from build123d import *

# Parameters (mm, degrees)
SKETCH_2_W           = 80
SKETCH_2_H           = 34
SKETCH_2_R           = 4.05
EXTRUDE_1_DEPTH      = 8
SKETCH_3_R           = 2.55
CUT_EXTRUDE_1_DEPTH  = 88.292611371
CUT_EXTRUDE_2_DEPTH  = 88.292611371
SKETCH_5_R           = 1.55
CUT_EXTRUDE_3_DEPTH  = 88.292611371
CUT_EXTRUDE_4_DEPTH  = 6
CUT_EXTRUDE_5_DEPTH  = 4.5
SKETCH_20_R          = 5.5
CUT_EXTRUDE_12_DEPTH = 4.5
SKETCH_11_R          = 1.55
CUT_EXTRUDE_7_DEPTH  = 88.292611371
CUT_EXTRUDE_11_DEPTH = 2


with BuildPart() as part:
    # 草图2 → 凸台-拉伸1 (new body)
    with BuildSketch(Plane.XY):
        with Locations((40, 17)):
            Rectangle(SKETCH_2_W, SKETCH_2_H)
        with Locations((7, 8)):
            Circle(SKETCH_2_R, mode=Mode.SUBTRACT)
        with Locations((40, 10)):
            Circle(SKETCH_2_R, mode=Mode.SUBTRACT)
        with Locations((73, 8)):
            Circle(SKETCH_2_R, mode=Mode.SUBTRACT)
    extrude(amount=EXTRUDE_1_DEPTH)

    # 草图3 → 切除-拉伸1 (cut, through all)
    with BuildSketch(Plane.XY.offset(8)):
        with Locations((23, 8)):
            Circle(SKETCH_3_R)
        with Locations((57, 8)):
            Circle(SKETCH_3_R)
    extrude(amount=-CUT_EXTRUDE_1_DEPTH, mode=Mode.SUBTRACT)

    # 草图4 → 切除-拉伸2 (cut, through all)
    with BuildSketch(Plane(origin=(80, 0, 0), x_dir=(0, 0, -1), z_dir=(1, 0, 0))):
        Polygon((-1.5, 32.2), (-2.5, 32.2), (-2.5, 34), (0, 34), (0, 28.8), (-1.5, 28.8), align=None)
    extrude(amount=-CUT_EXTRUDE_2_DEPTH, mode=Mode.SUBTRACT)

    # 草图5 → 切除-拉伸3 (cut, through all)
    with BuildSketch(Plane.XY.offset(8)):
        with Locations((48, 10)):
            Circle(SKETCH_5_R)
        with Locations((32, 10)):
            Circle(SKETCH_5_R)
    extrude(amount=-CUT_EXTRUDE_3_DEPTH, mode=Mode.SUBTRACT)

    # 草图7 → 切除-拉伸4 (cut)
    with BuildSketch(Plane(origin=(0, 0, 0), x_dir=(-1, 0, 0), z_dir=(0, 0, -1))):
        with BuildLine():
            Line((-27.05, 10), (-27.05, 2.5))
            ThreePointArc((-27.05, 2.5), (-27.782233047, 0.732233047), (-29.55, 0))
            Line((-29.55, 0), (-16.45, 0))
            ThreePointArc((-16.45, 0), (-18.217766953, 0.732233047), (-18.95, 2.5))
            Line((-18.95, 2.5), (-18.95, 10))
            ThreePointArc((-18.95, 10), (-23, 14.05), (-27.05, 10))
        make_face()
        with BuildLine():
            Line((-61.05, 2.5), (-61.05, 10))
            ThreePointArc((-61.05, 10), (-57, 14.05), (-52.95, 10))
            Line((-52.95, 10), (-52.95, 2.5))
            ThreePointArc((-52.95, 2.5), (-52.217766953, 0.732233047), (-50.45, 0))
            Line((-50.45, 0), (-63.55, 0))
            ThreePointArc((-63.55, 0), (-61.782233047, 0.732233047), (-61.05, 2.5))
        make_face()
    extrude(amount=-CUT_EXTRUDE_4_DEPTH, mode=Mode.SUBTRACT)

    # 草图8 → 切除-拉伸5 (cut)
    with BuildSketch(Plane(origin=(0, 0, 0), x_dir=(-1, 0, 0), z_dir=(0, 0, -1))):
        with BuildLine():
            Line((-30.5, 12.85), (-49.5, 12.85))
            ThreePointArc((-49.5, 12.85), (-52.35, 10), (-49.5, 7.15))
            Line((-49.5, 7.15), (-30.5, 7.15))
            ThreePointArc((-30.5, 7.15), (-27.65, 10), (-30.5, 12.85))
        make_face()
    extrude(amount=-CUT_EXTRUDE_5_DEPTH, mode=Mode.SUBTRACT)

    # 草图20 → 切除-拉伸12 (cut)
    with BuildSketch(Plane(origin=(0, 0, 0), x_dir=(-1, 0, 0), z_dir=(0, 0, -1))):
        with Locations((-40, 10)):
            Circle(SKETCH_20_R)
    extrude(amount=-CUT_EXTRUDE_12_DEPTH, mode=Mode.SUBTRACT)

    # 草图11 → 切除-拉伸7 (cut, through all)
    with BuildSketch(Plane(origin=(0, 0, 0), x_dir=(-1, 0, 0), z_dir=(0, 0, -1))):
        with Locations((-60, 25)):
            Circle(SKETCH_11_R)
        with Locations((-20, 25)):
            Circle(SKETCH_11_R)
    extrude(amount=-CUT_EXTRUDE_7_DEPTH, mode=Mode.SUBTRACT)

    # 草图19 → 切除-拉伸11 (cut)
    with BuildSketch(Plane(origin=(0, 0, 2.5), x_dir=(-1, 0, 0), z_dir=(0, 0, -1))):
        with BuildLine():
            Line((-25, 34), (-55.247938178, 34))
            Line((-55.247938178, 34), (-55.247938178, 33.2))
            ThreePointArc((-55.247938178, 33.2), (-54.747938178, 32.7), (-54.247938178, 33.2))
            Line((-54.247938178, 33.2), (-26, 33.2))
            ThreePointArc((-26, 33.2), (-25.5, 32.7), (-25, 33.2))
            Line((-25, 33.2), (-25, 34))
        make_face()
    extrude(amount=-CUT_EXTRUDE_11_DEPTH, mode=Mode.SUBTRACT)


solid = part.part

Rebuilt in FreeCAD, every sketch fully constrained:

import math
import FreeCAD as App
import Part
import Sketcher

V = App.Vector
Q = App.Units.Quantity

doc = App.newDocument("Part")
body = doc.addObject("PartDesign::Body", "Body")

sketch1 = body.newObject("Sketcher::SketchObject", "Sketch")
sketch1.AttachmentSupport = (doc.getObject("XY_Plane"), [""])
sketch1.MapMode = "FlatFace"
sketch1.addGeometry(Part.LineSegment(V(0, 34, 0), V(0, 0, 0)), False)
sketch1.addGeometry(Part.LineSegment(V(0, 0, 0), V(80, 0, 0)), False)
sketch1.addGeometry(Part.LineSegment(V(80, 0, 0), V(80, 34, 0)), False)
sketch1.addGeometry(Part.LineSegment(V(80, 34, 0), V(0, 34, 0)), False)
sketch1.addGeometry(Part.Circle(V(7, 8, 0), V(0, 0, 1), 4), False)
sketch1.addGeometry(Part.Circle(V(73, 8, 0), V(0, 0, 1), 4), False)
sketch1.addGeometry(Part.Circle(V(40, 10, 0), V(0, 0, 1), 4), False)
sketch1.addConstraint(Sketcher.Constraint("Coincident", 0, 2, 1, 1))
sketch1.addConstraint(Sketcher.Constraint("Coincident", 1, 2, 2, 1))
sketch1.addConstraint(Sketcher.Constraint("Coincident", 2, 2, 3, 1))
sketch1.addConstraint(Sketcher.Constraint("Coincident", 3, 2, 0, 1))
sketch1.addConstraint(Sketcher.Constraint("Vertical", 0))
sketch1.addConstraint(Sketcher.Constraint("Horizontal", 1))
sketch1.addConstraint(Sketcher.Constraint("Vertical", 2))
sketch1.addConstraint(Sketcher.Constraint("Horizontal", 3))
sketch1.addConstraint(Sketcher.Constraint("Coincident", 0, 2, -1, 1))
sketch1.addConstraint(Sketcher.Constraint("Equal", 4, 5))
sketch1.addConstraint(Sketcher.Constraint("Equal", 5, 6))
sketch1.addConstraint(Sketcher.Constraint("Horizontal", 4, 3, 5, 3))
sketch1.addConstraint(Sketcher.Constraint("Diameter", 4, Q("8.1 mm")))
sketch1.addConstraint(Sketcher.Constraint("DistanceX", 1, 1, 1, 2, Q("80 mm")))
sketch1.addConstraint(Sketcher.Constraint("DistanceY", 0, 2, 0, 1, Q("34 mm")))
sketch1.addConstraint(Sketcher.Constraint("DistanceX", -1, 1, 4, 3, Q("7 mm")))
sketch1.addConstraint(Sketcher.Constraint("DistanceY", -1, 1, 4, 3, Q("8 mm")))
sketch1.addConstraint(Sketcher.Constraint("DistanceX", -1, 1, 5, 3, Q("73 mm")))
sketch1.addConstraint(Sketcher.Constraint("DistanceX", -1, 1, 6, 3, Q("40 mm")))
sketch1.addConstraint(Sketcher.Constraint("DistanceY", -1, 1, 6, 3, Q("10 mm")))
pad1 = body.newObject("PartDesign::Pad", "Pad")
pad1.Profile = sketch1
pad1.Length = 8

sketch2 = body.newObject("Sketcher::SketchObject", "Sketch001")
sketch2.AttachmentSupport = (doc.getObject("XY_Plane"), [""])
sketch2.MapMode = "FlatFace"
sketch2.AttachmentOffset = App.Placement(V(0, 0, 8), App.Rotation())
sketch2.addGeometry(Part.Circle(V(23, 8, 0), V(0, 0, 1), 2.5), False)
sketch2.addGeometry(Part.Circle(V(57, 8, 0), V(0, 0, 1), 2.5), False)
sketch2.addConstraint(Sketcher.Constraint("Equal", 0, 1))
sketch2.addConstraint(Sketcher.Constraint("Horizontal", 0, 3, 1, 3))
sketch2.addConstraint(Sketcher.Constraint("Diameter", 0, Q("5.1 mm")))
sketch2.addConstraint(Sketcher.Constraint("DistanceX", -1, 1, 0, 3, Q("23 mm")))
sketch2.addConstraint(Sketcher.Constraint("DistanceY", -1, 1, 0, 3, Q("8 mm")))
sketch2.addConstraint(Sketcher.Constraint("DistanceX", -1, 1, 1, 3, Q("57 mm")))
pocket1 = body.newObject("PartDesign::Pocket", "Pocket")
pocket1.Profile = sketch2
pocket1.Type = "ThroughAll"

sketch3 = body.newObject("Sketcher::SketchObject", "Sketch002")
sketch3.AttachmentSupport = (doc.getObject("YZ_Plane"), [""])
sketch3.MapMode = "FlatFace"
sketch3.AttachmentOffset = App.Placement(V(0, 0, 80), App.Rotation())
sketch3.addGeometry(Part.LineSegment(V(32.2, 2.5, 0), V(32.2, 1.5, 0)), False)
sketch3.addGeometry(Part.LineSegment(V(32.2, 1.5, 0), V(28.8, 1.5, 0)), False)
sketch3.addGeometry(Part.LineSegment(V(28.8, 1.5, 0), V(28.8, 0, 0)), False)
sketch3.addGeometry(Part.LineSegment(V(28.8, 0, 0), V(34, 0, 0)), False)
sketch3.addGeometry(Part.LineSegment(V(34, 0, 0), V(34, 2.5, 0)), False)
sketch3.addGeometry(Part.LineSegment(V(34, 2.5, 0), V(32.2, 2.5, 0)), False)
sketch3.addConstraint(Sketcher.Constraint("Coincident", 0, 2, 1, 1))
sketch3.addConstraint(Sketcher.Constraint("Coincident", 1, 2, 2, 1))
sketch3.addConstraint(Sketcher.Constraint("Coincident", 2, 2, 3, 1))
sketch3.addConstraint(Sketcher.Constraint("Coincident", 3, 2, 4, 1))
sketch3.addConstraint(Sketcher.Constraint("Coincident", 4, 2, 5, 1))
sketch3.addConstraint(Sketcher.Constraint("Coincident", 5, 2, 0, 1))
sketch3.addConstraint(Sketcher.Constraint("Vertical", 0))
sketch3.addConstraint(Sketcher.Constraint("Horizontal", 1))
sketch3.addConstraint(Sketcher.Constraint("Vertical", 2))
sketch3.addConstraint(Sketcher.Constraint("Horizontal", 3))
sketch3.addConstraint(Sketcher.Constraint("Vertical", 4))
sketch3.addConstraint(Sketcher.Constraint("Horizontal", 5))
sketch3.addConstraint(Sketcher.Constraint("PointOnObject", 2, 2, -1))
sketch3.addConstraint(Sketcher.Constraint("DistanceY", 0, 2, 0, 1, Q("1 mm")))
sketch3.addConstraint(Sketcher.Constraint("DistanceX", 1, 2, 1, 1, Q("3.4 mm")))
sketch3.addConstraint(Sketcher.Constraint("DistanceX", 3, 1, 3, 2, Q("5.2 mm")))
sketch3.addConstraint(Sketcher.Constraint("DistanceY", 2, 2, 2, 1, Q("1.5 mm")))
sketch3.addConstraint(Sketcher.Constraint("DistanceX", -1, 1, 3, 2, Q("34 mm")))
pocket2 = body.newObject("PartDesign::Pocket", "Pocket001")
pocket2.Profile = sketch3
pocket2.Type = "ThroughAll"

sketch4 = body.newObject("Sketcher::SketchObject", "Sketch003")
sketch4.AttachmentSupport = (doc.getObject("XY_Plane"), [""])
sketch4.MapMode = "FlatFace"
sketch4.AttachmentOffset = App.Placement(V(0, 0, 8), App.Rotation())
sketch4.addGeometry(Part.Circle(V(48, 10, 0), V(0, 0, 1), 1.6), False)
sketch4.addGeometry(Part.Circle(V(32, 10, 0), V(0, 0, 1), 1.6), False)
sketch4.addConstraint(Sketcher.Constraint("Equal", 0, 1))
sketch4.addConstraint(Sketcher.Constraint("Horizontal", 0, 3, 1, 3))
sketch4.addConstraint(Sketcher.Constraint("Diameter", 0, Q("3.1 mm")))
sketch4.addConstraint(Sketcher.Constraint("DistanceX", -1, 1, 0, 3, Q("48 mm")))
sketch4.addConstraint(Sketcher.Constraint("DistanceY", -1, 1, 0, 3, Q("10 mm")))
sketch4.addConstraint(Sketcher.Constraint("DistanceX", -1, 1, 1, 3, Q("32 mm")))
pocket3 = body.newObject("PartDesign::Pocket", "Pocket002")
pocket3.Profile = sketch4
pocket3.Type = "ThroughAll"

sketch5 = body.newObject("Sketcher::SketchObject", "Sketch004")
sketch5.AttachmentSupport = (doc.getObject("XY_Plane"), [""])
sketch5.MapMode = "FlatFace"
sketch5.addGeometry(Part.LineSegment(V(27.1, 10, 0), V(27.1, 2.5, 0)), False)
sketch5.addGeometry(Part.ArcOfCircle(Part.Circle(V(29.6, 2.5, 0), V(0, 0, 1), 2.5), math.radians(180), math.radians(270)), False)
sketch5.addGeometry(Part.LineSegment(V(29.6, 0, 0), V(16.4, 0, 0)), False)
sketch5.addGeometry(Part.ArcOfCircle(Part.Circle(V(16.4, 2.5, 0), V(0, 0, 1), 2.5), math.radians(-90), math.radians(0)), False)
sketch5.addGeometry(Part.LineSegment(V(18.9, 2.5, 0), V(18.9, 10, 0)), False)
sketch5.addGeometry(Part.ArcOfCircle(Part.Circle(V(23, 10, 0), V(0, 0, 1), 4), math.radians(0), math.radians(180)), False)
sketch5.addGeometry(Part.LineSegment(V(61, 10, 0), V(61, 2.5, 0)), False)
sketch5.addGeometry(Part.ArcOfCircle(Part.Circle(V(63.5, 2.5, 0), V(0, 0, 1), 2.5), math.radians(180), math.radians(270)), False)
sketch5.addGeometry(Part.LineSegment(V(63.5, 0, 0), V(50.5, 0, 0)), False)
sketch5.addGeometry(Part.ArcOfCircle(Part.Circle(V(50.5, 2.5, 0), V(0, 0, 1), 2.5), math.radians(-90), math.radians(0)), False)
sketch5.addGeometry(Part.LineSegment(V(53, 2.5, 0), V(53, 10, 0)), False)
sketch5.addGeometry(Part.ArcOfCircle(Part.Circle(V(57, 10, 0), V(0, 0, 1), 4), math.radians(0), math.radians(180)), False)
sketch5.addConstraint(Sketcher.Constraint("Tangent", 0, 2, 1, 1))
sketch5.addConstraint(Sketcher.Constraint("Tangent", 1, 2, 2, 1))
sketch5.addConstraint(Sketcher.Constraint("Tangent", 2, 2, 3, 1))
sketch5.addConstraint(Sketcher.Constraint("Tangent", 3, 2, 4, 1))
sketch5.addConstraint(Sketcher.Constraint("Tangent", 4, 2, 5, 2))
sketch5.addConstraint(Sketcher.Constraint("Tangent", 5, 1, 0, 1))
sketch5.addConstraint(Sketcher.Constraint("Tangent", 6, 2, 7, 1))
sketch5.addConstraint(Sketcher.Constraint("Tangent", 7, 2, 8, 1))
sketch5.addConstraint(Sketcher.Constraint("Tangent", 8, 2, 9, 1))
sketch5.addConstraint(Sketcher.Constraint("Tangent", 9, 2, 10, 1))
sketch5.addConstraint(Sketcher.Constraint("Tangent", 10, 2, 11, 2))
sketch5.addConstraint(Sketcher.Constraint("Tangent", 11, 1, 6, 1))
sketch5.addConstraint(Sketcher.Constraint("Vertical", 0))
sketch5.addConstraint(Sketcher.Constraint("Horizontal", 2))
sketch5.addConstraint(Sketcher.Constraint("Vertical", 4))
sketch5.addConstraint(Sketcher.Constraint("Vertical", 6))
sketch5.addConstraint(Sketcher.Constraint("Horizontal", 8))
sketch5.addConstraint(Sketcher.Constraint("Vertical", 10))
sketch5.addConstraint(Sketcher.Constraint("Equal", 1, 3))
sketch5.addConstraint(Sketcher.Constraint("Equal", 3, 7))
sketch5.addConstraint(Sketcher.Constraint("Equal", 7, 9))
sketch5.addConstraint(Sketcher.Constraint("Equal", 5, 11))
sketch5.addConstraint(Sketcher.Constraint("PointOnObject", 1, 2, -1))
sketch5.addConstraint(Sketcher.Constraint("PointOnObject", 7, 2, -1))
sketch5.addConstraint(Sketcher.Constraint("Horizontal", 5, 3, 11, 3))
sketch5.addConstraint(Sketcher.Constraint("Radius", 1, Q("2.5 mm")))
sketch5.addConstraint(Sketcher.Constraint("Radius", 5, Q("4.05 mm")))
sketch5.addConstraint(Sketcher.Constraint("DistanceY", 0, 2, 0, 1, Q("7.5 mm")))
sketch5.addConstraint(Sketcher.Constraint("DistanceX", -1, 1, 5, 3, Q("23 mm")))
sketch5.addConstraint(Sketcher.Constraint("DistanceX", -1, 1, 11, 3, Q("57 mm")))
pocket4 = body.newObject("PartDesign::Pocket", "Pocket003")
pocket4.Profile = sketch5
pocket4.Length = 6
pocket4.Reversed = True

sketch6 = body.newObject("Sketcher::SketchObject", "Sketch005")
sketch6.AttachmentSupport = (doc.getObject("XY_Plane"), [""])
sketch6.MapMode = "FlatFace"
sketch6.addGeometry(Part.LineSegment(V(30.5, 12.8, 0), V(49.5, 12.8, 0)), False)
sketch6.addGeometry(Part.ArcOfCircle(Part.Circle(V(49.5, 10, 0), V(0, 0, 1), 2.9), math.radians(-90), math.radians(90)), False)
sketch6.addGeometry(Part.LineSegment(V(49.5, 7.2, 0), V(30.5, 7.2, 0)), False)
sketch6.addGeometry(Part.ArcOfCircle(Part.Circle(V(30.5, 10, 0), V(0, 0, 1), 2.9), math.radians(90), math.radians(270)), False)
sketch6.addConstraint(Sketcher.Constraint("Tangent", 0, 2, 1, 2))
sketch6.addConstraint(Sketcher.Constraint("Tangent", 1, 1, 2, 1))
sketch6.addConstraint(Sketcher.Constraint("Tangent", 2, 2, 3, 2))
sketch6.addConstraint(Sketcher.Constraint("Tangent", 3, 1, 0, 1))
sketch6.addConstraint(Sketcher.Constraint("Horizontal", 0))
sketch6.addConstraint(Sketcher.Constraint("Horizontal", 2))
sketch6.addConstraint(Sketcher.Constraint("DistanceX", 0, 1, 0, 2, Q("19 mm")))
sketch6.addConstraint(Sketcher.Constraint("Radius", 1, Q("2.85 mm")))
sketch6.addConstraint(Sketcher.Constraint("DistanceY", -1, 1, 1, 3, Q("10 mm")))
sketch6.addConstraint(Sketcher.Constraint("DistanceX", -1, 1, 1, 3, Q("49.5 mm")))
pocket5 = body.newObject("PartDesign::Pocket", "Pocket004")
pocket5.Profile = sketch6
pocket5.Length = 4.5
pocket5.Reversed = True

sketch7 = body.newObject("Sketcher::SketchObject", "Sketch006")
sketch7.AttachmentSupport = (doc.getObject("XY_Plane"), [""])
sketch7.MapMode = "FlatFace"
sketch7.addGeometry(Part.Circle(V(40, 10, 0), V(0, 0, 1), 6), False)
sketch7.addConstraint(Sketcher.Constraint("Diameter", 0, Q("11 mm")))
sketch7.addConstraint(Sketcher.Constraint("DistanceX", -1, 1, 0, 3, Q("40 mm")))
sketch7.addConstraint(Sketcher.Constraint("DistanceY", -1, 1, 0, 3, Q("10 mm")))
pocket6 = body.newObject("PartDesign::Pocket", "Pocket005")
pocket6.Profile = sketch7
pocket6.Length = 4.5
pocket6.Reversed = True

sketch8 = body.newObject("Sketcher::SketchObject", "Sketch007")
sketch8.AttachmentSupport = (doc.getObject("XY_Plane"), [""])
sketch8.MapMode = "FlatFace"
sketch8.addGeometry(Part.Circle(V(60, 25, 0), V(0, 0, 1), 1.6), False)
sketch8.addGeometry(Part.Circle(V(20, 25, 0), V(0, 0, 1), 1.6), False)
sketch8.addConstraint(Sketcher.Constraint("Equal", 0, 1))
sketch8.addConstraint(Sketcher.Constraint("Horizontal", 0, 3, 1, 3))
sketch8.addConstraint(Sketcher.Constraint("Diameter", 0, Q("3.1 mm")))
sketch8.addConstraint(Sketcher.Constraint("DistanceX", -1, 1, 0, 3, Q("60 mm")))
sketch8.addConstraint(Sketcher.Constraint("DistanceY", -1, 1, 0, 3, Q("25 mm")))
sketch8.addConstraint(Sketcher.Constraint("DistanceX", -1, 1, 1, 3, Q("20 mm")))
pocket7 = body.newObject("PartDesign::Pocket", "Pocket006")
pocket7.Profile = sketch8
pocket7.Type = "ThroughAll"
pocket7.Reversed = True

sketch9 = body.newObject("Sketcher::SketchObject", "Sketch008")
sketch9.AttachmentSupport = (doc.getObject("XY_Plane"), [""])
sketch9.MapMode = "FlatFace"
sketch9.AttachmentOffset = App.Placement(V(0, 0, 2.5), App.Rotation())
sketch9.addGeometry(Part.LineSegment(V(25, 34, 0), V(55.2, 34, 0)), False)
sketch9.addGeometry(Part.LineSegment(V(55.2, 34, 0), V(55.2, 33.2, 0)), False)
sketch9.addGeometry(Part.ArcOfCircle(Part.Circle(V(54.7, 33.2, 0), V(0, 0, 1), 0.5), math.radians(180), math.radians(360)), False)
sketch9.addGeometry(Part.LineSegment(V(54.2, 33.2, 0), V(26, 33.2, 0)), False)
sketch9.addGeometry(Part.ArcOfCircle(Part.Circle(V(25.5, 33.2, 0), V(0, 0, 1), 0.5), math.radians(180), math.radians(360)), False)
sketch9.addGeometry(Part.LineSegment(V(25, 33.2, 0), V(25, 34, 0)), False)
sketch9.addConstraint(Sketcher.Constraint("Coincident", 0, 2, 1, 1))
sketch9.addConstraint(Sketcher.Constraint("Tangent", 1, 2, 2, 2))
sketch9.addConstraint(Sketcher.Constraint("Coincident", 2, 1, 3, 1))
sketch9.addConstraint(Sketcher.Constraint("Coincident", 3, 2, 4, 2))
sketch9.addConstraint(Sketcher.Constraint("Tangent", 4, 1, 5, 1))
sketch9.addConstraint(Sketcher.Constraint("Coincident", 5, 2, 0, 1))
sketch9.addConstraint(Sketcher.Constraint("Horizontal", 0))
sketch9.addConstraint(Sketcher.Constraint("Vertical", 1))
sketch9.addConstraint(Sketcher.Constraint("Horizontal", 3))
sketch9.addConstraint(Sketcher.Constraint("Vertical", 5))
sketch9.addConstraint(Sketcher.Constraint("Equal", 2, 4))
sketch9.addConstraint(Sketcher.Constraint("Horizontal", 2, 3, 4, 3))
sketch9.addConstraint(Sketcher.Constraint("Horizontal", 1, 2, 2, 1))
sketch9.addConstraint(Sketcher.Constraint("Radius", 2, Q("0.5 mm")))
sketch9.addConstraint(Sketcher.Constraint("DistanceY", 1, 2, 1, 1, Q("0.8 mm")))
sketch9.addConstraint(Sketcher.Constraint("DistanceY", -1, 1, 0, 2, Q("34 mm")))
sketch9.addConstraint(Sketcher.Constraint("DistanceX", -1, 1, 3, 2, Q("26 mm")))
sketch9.addConstraint(Sketcher.Constraint("DistanceX", 0, 1, 0, 2, Q("30.247938 mm")))
pocket8 = body.newObject("PartDesign::Pocket", "Pocket007")
pocket8.Profile = sketch9
pocket8.Length = 2
pocket8.Reversed = True

doc.recompute()
